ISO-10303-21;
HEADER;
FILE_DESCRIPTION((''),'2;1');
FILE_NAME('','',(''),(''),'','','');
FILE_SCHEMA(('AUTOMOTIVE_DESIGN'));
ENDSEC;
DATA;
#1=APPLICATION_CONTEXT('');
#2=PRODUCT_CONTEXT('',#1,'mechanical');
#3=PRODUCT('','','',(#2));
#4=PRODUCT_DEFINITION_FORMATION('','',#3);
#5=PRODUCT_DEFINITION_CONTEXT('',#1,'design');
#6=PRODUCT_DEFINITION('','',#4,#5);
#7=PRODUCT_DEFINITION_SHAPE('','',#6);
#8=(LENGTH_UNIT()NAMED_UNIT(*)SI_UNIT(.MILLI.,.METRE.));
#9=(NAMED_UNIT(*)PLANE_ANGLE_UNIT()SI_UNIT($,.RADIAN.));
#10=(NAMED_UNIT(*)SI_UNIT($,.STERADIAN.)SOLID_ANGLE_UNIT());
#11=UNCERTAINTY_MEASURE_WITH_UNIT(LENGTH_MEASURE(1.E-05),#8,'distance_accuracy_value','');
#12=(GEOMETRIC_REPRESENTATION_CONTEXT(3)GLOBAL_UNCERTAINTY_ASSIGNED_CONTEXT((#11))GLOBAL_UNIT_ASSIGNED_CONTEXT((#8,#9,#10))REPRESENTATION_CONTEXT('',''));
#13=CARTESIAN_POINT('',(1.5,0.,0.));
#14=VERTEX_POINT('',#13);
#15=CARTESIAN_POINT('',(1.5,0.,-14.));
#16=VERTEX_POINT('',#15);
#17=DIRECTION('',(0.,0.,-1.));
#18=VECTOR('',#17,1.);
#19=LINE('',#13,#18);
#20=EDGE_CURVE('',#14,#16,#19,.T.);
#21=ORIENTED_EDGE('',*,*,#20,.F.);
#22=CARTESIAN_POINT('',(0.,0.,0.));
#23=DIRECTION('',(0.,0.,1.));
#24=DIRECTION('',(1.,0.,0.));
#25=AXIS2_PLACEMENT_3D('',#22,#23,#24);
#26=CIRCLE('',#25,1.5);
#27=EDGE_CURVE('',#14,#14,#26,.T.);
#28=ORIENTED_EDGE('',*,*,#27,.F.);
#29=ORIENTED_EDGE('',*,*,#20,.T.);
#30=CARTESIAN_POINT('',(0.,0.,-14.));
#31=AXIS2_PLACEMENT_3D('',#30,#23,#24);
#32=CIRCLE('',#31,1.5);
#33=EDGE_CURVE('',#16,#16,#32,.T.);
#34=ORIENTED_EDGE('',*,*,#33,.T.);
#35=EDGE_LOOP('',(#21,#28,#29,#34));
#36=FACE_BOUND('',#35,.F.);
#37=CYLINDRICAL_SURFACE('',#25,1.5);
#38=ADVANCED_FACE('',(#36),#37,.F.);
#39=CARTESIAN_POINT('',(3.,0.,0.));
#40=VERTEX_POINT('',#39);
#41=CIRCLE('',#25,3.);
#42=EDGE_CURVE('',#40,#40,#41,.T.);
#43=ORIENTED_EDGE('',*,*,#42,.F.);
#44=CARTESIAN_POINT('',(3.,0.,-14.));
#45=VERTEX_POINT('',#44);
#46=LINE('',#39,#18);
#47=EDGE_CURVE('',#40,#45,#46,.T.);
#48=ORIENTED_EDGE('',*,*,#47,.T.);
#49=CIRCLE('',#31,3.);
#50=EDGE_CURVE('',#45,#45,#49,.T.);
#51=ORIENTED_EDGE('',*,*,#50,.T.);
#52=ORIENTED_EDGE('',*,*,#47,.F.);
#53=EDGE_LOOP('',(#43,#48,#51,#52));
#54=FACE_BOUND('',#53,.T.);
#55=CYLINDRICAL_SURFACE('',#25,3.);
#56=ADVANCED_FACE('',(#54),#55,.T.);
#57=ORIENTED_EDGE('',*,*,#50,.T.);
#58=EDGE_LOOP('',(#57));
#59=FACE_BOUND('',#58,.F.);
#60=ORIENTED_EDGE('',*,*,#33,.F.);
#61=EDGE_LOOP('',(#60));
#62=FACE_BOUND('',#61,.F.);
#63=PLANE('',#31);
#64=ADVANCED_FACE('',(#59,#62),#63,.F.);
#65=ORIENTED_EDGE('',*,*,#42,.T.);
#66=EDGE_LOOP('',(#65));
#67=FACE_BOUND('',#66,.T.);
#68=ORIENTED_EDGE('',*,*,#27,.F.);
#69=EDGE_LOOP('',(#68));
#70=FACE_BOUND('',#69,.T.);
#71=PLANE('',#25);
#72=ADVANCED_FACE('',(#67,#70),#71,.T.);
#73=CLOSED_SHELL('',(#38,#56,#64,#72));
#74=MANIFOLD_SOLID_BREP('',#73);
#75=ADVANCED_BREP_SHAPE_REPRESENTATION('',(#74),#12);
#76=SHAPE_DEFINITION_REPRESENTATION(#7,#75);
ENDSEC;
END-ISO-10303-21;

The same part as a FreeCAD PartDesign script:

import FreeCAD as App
import Part
import Sketcher

doc = App.newDocument("Part")
body = doc.addObject("PartDesign::Body", "Body")

# Sketch on XY plane
sketch1 = body.newObject("Sketcher::SketchObject", "Sketch")
sketch1.AttachmentSupport = (doc.getObject("XY_Plane"), [""])
sketch1.MapMode = "FlatFace"
sketch1.addGeometry([
    Part.Circle(App.Vector(0, 0, 0), App.Vector(0, 0, 1), 3),
    Part.Circle(App.Vector(0, 0, 0), App.Vector(0, 0, 1), 1.5),
], False)
sketch1.addConstraint([
    Sketcher.Constraint("Coincident", 0, 3, -1, 1),
    Sketcher.Constraint("Coincident", 1, 3, -1, 1),
    Sketcher.Constraint("Diameter", 0, 6.0),
    Sketcher.Constraint("Diameter", 1, 3.0),
])
pad1 = body.newObject("PartDesign::Pad", "Pad")
pad1.Profile = sketch1
pad1.Length = 14
pad1.Reversed = True

doc.recompute()
